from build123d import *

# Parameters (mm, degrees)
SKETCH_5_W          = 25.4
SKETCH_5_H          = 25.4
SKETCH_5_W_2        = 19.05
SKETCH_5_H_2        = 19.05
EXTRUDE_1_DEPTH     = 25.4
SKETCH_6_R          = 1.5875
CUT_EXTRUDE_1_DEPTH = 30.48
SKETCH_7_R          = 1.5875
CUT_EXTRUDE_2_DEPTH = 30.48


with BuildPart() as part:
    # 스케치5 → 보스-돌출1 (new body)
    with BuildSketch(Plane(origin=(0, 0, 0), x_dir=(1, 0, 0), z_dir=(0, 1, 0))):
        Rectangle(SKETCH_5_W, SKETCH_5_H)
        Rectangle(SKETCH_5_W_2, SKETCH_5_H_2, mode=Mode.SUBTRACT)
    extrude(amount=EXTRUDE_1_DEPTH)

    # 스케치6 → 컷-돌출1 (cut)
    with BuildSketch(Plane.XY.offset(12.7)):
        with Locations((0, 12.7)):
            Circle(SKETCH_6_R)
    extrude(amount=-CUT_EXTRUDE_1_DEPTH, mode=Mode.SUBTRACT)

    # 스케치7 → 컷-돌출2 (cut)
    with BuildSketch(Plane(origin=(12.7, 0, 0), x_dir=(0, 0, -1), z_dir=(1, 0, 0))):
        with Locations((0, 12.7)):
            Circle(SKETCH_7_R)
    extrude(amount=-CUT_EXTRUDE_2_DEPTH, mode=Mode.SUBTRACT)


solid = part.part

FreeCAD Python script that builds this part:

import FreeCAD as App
import Part
import Sketcher
from FreeCAD import Vector
Q = App.Units.Quantity


def add_polygon(sketch, points):
    """Adds a closed chain of lines whose ends are joined by coincident constraints."""
    first, n = sketch.GeometryCount, len(points)
    for a, b in zip(points, points[1:] + points[:1]):
        sketch.addGeometry(Part.LineSegment(App.Vector(*a, 0), App.Vector(*b, 0)), False)
    for i in range(n):
        sketch.addConstraint(Sketcher.Constraint("Coincident", first + i, 2, first + (i + 1) % n, 1))

doc = App.newDocument("Part")
body = doc.addObject("PartDesign::Body", "Body")

# Sketch on XZ plane
sketch1 = doc.addObject("Sketcher::SketchObject", "Sketch")
body.addObject(sketch1)
sketch1.AttachmentSupport = (doc.XZ_Plane, [""])
sketch1.MapMode = "FlatFace"
add_polygon(sketch1, [(-13, -13), (-13, 13), (13, 13), (13, -13)])  # lines 0-3
add_polygon(sketch1, [(10, 10), (-10, 10), (-10, -10), (10, -10)])  # lines 4-7
sketch1.addConstraint(Sketcher.Constraint("Vertical", 0))
sketch1.addConstraint(Sketcher.Constraint("Horizontal", 1))
sketch1.addConstraint(Sketcher.Constraint("Vertical", 2))
sketch1.addConstraint(Sketcher.Constraint("Horizontal", 3))
sketch1.addConstraint(Sketcher.Constraint("Horizontal", 4))
sketch1.addConstraint(Sketcher.Constraint("Vertical", 5))
sketch1.addConstraint(Sketcher.Constraint("Horizontal", 6))
sketch1.addConstraint(Sketcher.Constraint("Vertical", 7))
sketch1.addConstraint(Sketcher.Constraint("Symmetric", 0, 2, 2, 2, -1, 1))
sketch1.addConstraint(Sketcher.Constraint("Symmetric", 4, 2, 6, 2, -1, 1))
sketch1.addConstraint(Sketcher.Constraint("Equal", 3, 0))
sketch1.addConstraint(Sketcher.Constraint("Equal", 6, 5))
sketch1.addConstraint(Sketcher.Constraint("DistanceX", 1, 1, 1, 2, Q("1 in")))
sketch1.addConstraint(Sketcher.Constraint("DistanceX", 4, 2, 4, 1, Q("0.75 in")))
pad1 = doc.addObject("PartDesign::Pad", "Pad")
body.addObject(pad1)
pad1.Profile = sketch1
pad1.Length = Q("1 in")
pad1.Reversed = True

# Sketch on XY plane
sketch2 = doc.addObject("Sketcher::SketchObject", "Sketch001")
body.addObject(sketch2)
sketch2.AttachmentSupport = (doc.XY_Plane, [""])
sketch2.MapMode = "FlatFace"
sketch2.AttachmentOffset = App.Placement(Vector(0, 0, 0.5 * 25.4), App.Rotation())
sketch2.addGeometry(Part.Circle(Vector(0, 12.7, 0), Vector(0, 0, 1), 1.6), False)
sketch2.addConstraint(Sketcher.Constraint("PointOnObject", 0, 3, -2))
sketch2.addConstraint(Sketcher.Constraint("Diameter", 0, Q("0.125 in")))
sketch2.addConstraint(Sketcher.Constraint("DistanceY", -1, 1, 0, 3, Q("0.5 in")))
pocket1 = doc.addObject("PartDesign::Pocket", "Pocket")
body.addObject(pocket1)
pocket1.Profile = sketch2
pocket1.Length = Q("1.2 in")

# Sketch on YZ plane
sketch3 = doc.addObject("Sketcher::SketchObject", "Sketch002")
body.addObject(sketch3)
sketch3.AttachmentSupport = (doc.YZ_Plane, [""])
sketch3.MapMode = "FlatFace"
sketch3.AttachmentOffset = App.Placement(Vector(0, 0, 0.5 * 25.4), App.Rotation())
sketch3.addGeometry(Part.Circle(Vector(12.7, 0, 0), Vector(0, 0, 1), 1.6), False)
sketch3.addConstraint(Sketcher.Constraint("PointOnObject", 0, 3, -1))
sketch3.addConstraint(Sketcher.Constraint("Diameter", 0, Q("0.125 in")))
sketch3.addConstraint(Sketcher.Constraint("DistanceX", -1, 1, 0, 3, Q("0.5 in")))
pocket2 = doc.addObject("PartDesign::Pocket", "Pocket001")
body.addObject(pocket2)
pocket2.Profile = sketch3
pocket2.Length = Q("1.2 in")

doc.recompute()
